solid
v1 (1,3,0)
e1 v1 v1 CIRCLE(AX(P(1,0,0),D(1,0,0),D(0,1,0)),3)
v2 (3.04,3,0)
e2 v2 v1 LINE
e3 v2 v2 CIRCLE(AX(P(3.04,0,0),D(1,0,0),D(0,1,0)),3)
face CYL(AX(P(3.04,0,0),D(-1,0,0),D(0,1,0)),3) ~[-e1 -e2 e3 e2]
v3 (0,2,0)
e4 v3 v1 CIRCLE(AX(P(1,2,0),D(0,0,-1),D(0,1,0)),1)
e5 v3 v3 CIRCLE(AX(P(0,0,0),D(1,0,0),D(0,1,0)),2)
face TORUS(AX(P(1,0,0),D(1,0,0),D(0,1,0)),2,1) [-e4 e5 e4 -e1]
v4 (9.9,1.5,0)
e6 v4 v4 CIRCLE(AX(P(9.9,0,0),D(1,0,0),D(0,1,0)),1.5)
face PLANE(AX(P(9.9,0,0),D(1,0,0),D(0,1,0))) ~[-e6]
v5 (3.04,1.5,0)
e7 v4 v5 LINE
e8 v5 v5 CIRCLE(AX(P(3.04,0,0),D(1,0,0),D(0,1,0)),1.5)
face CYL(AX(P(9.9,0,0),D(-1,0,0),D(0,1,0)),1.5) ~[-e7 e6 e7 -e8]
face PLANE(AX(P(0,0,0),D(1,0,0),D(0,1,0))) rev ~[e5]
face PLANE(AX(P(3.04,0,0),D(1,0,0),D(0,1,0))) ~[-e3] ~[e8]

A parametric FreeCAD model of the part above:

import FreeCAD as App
import Part
import Sketcher
Q = App.Units.Quantity


def edges_at(feature, points):
    """Names of the edges that pass closest to the given points."""
    edges = feature.Shape.Edges
    near = lambda p: min(range(len(edges)), key=lambda i: edges[i].distToShape(Part.Vertex(*p))[0])
    return sorted({f"Edge{near(p) + 1}" for p in points})

doc = App.newDocument("Part")
body = doc.addObject("PartDesign::Body", "Body")

# Sketch on XY plane
sketch1 = body.newObject("Sketcher::SketchObject", "Sketch")
sketch1.AttachmentSupport = (doc.getObject("XY_Plane"), [""])
sketch1.MapMode = "FlatFace"
sketch1.addGeometry(Part.LineSegment(App.Vector(0, 0, 0), App.Vector(9.9, 0, 0)), False)
sketch1.addGeometry(Part.LineSegment(App.Vector(9.9, 0, 0), App.Vector(9.9, 1.5, 0)), False)
sketch1.addGeometry(Part.LineSegment(App.Vector(9.9, 1.5, 0), App.Vector(3, 1.5, 0)), False)
sketch1.addGeometry(Part.LineSegment(App.Vector(3, 1.5, 0), App.Vector(3, 3, 0)), False)
sketch1.addGeometry(Part.LineSegment(App.Vector(3, 3, 0), App.Vector(0, 3, 0)), False)
sketch1.addGeometry(Part.LineSegment(App.Vector(0, 3, 0), App.Vector(0, 0, 0)), False)
sketch1.addConstraint(Sketcher.Constraint("Coincident", 0, 2, 1, 1))
sketch1.addConstraint(Sketcher.Constraint("Coincident", 1, 2, 2, 1))
sketch1.addConstraint(Sketcher.Constraint("Coincident", 2, 2, 3, 1))
sketch1.addConstraint(Sketcher.Constraint("Coincident", 3, 2, 4, 1))
sketch1.addConstraint(Sketcher.Constraint("Coincident", 4, 2, 5, 1))
sketch1.addConstraint(Sketcher.Constraint("Coincident", 5, 2, 0, 1))
sketch1.addConstraint(Sketcher.Constraint("Horizontal", 0))
sketch1.addConstraint(Sketcher.Constraint("Vertical", 1))
sketch1.addConstraint(Sketcher.Constraint("Horizontal", 2))
sketch1.addConstraint(Sketcher.Constraint("Vertical", 3))
sketch1.addConstraint(Sketcher.Constraint("Horizontal", 4))
sketch1.addConstraint(Sketcher.Constraint("Vertical", 5))
sketch1.addConstraint(Sketcher.Constraint("Coincident", 5, 2, -1, 1))
sketch1.addConstraint(Sketcher.Constraint("Equal", 1, 3))
sketch1.addConstraint(Sketcher.Constraint("DistanceY", 5, 2, 5, 1, Q("3 mm")))
sketch1.addConstraint(Sketcher.Constraint("DistanceX", 0, 1, 0, 2, Q("9.9 mm")))
sketch1.addConstraint(Sketcher.Constraint("DistanceX", 4, 2, 4, 1, Q("3.04 mm")))
revolution = body.newObject("PartDesign::Revolution", "Revolution")
revolution.Profile = sketch1
revolution.ReferenceAxis = (sketch1, ["H_Axis"])
revolution.Angle = 360
doc.recompute()

fillet = body.newObject("PartDesign::Fillet", "Fillet")
fillet.Base = (revolution, edges_at(revolution, [(0, -3, 0)]))
fillet.Radius = 1

doc.recompute()
